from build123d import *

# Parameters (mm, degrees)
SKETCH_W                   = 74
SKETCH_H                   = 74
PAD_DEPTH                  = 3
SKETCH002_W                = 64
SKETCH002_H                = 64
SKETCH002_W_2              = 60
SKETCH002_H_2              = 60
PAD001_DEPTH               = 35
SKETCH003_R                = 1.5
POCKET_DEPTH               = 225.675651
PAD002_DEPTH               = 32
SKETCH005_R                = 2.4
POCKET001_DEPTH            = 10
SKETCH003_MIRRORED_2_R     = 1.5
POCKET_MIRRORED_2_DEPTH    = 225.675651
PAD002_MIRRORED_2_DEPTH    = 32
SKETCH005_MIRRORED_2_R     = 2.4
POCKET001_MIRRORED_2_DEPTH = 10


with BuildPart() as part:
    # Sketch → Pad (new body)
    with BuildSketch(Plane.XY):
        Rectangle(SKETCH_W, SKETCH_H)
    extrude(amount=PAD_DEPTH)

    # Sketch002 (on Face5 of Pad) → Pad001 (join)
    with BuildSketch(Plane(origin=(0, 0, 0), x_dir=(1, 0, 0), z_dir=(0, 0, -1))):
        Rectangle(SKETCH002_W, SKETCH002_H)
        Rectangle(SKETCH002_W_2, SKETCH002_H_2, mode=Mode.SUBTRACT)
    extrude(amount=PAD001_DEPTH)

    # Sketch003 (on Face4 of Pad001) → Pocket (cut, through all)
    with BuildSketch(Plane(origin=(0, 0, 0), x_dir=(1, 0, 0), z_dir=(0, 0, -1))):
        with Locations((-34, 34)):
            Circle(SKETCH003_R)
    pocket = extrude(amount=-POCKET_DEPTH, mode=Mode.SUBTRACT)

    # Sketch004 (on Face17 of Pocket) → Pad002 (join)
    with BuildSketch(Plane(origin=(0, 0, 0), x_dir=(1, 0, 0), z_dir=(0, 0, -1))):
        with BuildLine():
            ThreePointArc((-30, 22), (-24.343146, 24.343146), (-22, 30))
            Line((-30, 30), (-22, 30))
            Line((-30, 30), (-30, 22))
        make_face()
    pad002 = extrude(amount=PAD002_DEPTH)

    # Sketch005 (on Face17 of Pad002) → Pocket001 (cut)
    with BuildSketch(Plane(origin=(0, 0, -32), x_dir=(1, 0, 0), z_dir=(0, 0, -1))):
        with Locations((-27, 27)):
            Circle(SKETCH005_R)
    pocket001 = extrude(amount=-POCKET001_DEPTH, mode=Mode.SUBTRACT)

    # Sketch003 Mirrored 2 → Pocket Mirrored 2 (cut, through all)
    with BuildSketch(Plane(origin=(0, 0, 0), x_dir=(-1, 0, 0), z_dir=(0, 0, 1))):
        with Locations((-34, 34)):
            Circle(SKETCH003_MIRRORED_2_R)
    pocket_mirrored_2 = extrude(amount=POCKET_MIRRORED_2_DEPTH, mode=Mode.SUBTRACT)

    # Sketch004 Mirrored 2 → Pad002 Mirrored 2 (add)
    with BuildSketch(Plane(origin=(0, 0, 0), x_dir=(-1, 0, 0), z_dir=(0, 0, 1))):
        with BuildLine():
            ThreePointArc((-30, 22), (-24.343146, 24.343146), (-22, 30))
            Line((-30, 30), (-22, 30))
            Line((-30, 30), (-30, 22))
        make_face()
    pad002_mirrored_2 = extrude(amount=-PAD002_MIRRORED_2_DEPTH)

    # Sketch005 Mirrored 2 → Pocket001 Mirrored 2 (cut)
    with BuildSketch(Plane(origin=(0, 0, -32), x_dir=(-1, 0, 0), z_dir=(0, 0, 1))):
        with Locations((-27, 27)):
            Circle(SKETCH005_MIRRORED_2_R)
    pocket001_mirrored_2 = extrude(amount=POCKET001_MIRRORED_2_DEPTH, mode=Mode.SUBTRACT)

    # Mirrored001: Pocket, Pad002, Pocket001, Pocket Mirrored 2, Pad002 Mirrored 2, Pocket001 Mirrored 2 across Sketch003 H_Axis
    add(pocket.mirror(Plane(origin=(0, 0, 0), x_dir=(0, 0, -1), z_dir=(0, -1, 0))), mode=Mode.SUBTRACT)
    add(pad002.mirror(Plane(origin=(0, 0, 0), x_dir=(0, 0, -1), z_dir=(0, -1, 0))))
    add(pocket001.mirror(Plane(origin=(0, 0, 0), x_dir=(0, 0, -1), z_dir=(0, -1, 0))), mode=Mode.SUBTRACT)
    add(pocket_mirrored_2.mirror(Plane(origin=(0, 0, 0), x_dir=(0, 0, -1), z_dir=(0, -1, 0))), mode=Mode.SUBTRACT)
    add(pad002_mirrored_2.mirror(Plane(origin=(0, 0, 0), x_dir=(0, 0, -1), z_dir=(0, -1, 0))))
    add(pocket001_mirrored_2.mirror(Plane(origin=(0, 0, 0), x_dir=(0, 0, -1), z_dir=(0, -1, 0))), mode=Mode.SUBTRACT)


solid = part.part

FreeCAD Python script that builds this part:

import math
import FreeCAD as App
import Part
import Sketcher
from FreeCAD import Vector
Q = App.Units.Quantity


def add_polygon(sketch, points):
    """Adds a closed chain of lines whose ends are joined by coincident constraints."""
    first, n = sketch.GeometryCount, len(points)
    for a, b in zip(points, points[1:] + points[:1]):
        sketch.addGeometry(Part.LineSegment(App.Vector(*a, 0), App.Vector(*b, 0)), False)
    for i in range(n):
        sketch.addConstraint(Sketcher.Constraint("Coincident", first + i, 2, first + (i + 1) % n, 1))

doc = App.newDocument("Part")
body = doc.addObject("PartDesign::Body", "Body")

# Sketch on XY plane
sketch1 = doc.addObject("Sketcher::SketchObject", "Sketch")
body.addObject(sketch1)
sketch1.AttachmentSupport = (doc.XY_Plane, [""])
sketch1.MapMode = "FlatFace"
add_polygon(sketch1, [(-37, 37), (-37, -37), (37, -37), (37, 37)])  # lines 0-3
sketch1.addConstraint([
    Sketcher.Constraint("Vertical", 0),
    Sketcher.Constraint("Horizontal", 1),
    Sketcher.Constraint("Vertical", 2),
    Sketcher.Constraint("Horizontal", 3),
    Sketcher.Constraint("Symmetric", 0, 2, 2, 2, -1, 1),
    Sketcher.Constraint("Equal", 3, 0),
    Sketcher.Constraint("DistanceX", 1, 1, 1, 2, Q("74 mm")),
])
pad1 = doc.addObject("PartDesign::Pad", "Pad")
body.addObject(pad1)
pad1.Profile = sketch1
pad1.Length = 3

# Sketch on XY plane
sketch2 = doc.addObject("Sketcher::SketchObject", "Sketch001")
body.addObject(sketch2)
sketch2.AttachmentSupport = (doc.XY_Plane, [""])
sketch2.MapMode = "FlatFace"
add_polygon(sketch2, [(-32, -32), (-32, 32), (32, 32), (32, -32)])  # lines 0-3
add_polygon(sketch2, [(30, 30), (-30, 30), (-30, -30), (30, -30)])  # lines 4-7
sketch2.addConstraint([
    Sketcher.Constraint("Vertical", 0),
    Sketcher.Constraint("Horizontal", 1),
    Sketcher.Constraint("Vertical", 2),
    Sketcher.Constraint("Horizontal", 3),
    Sketcher.Constraint("Horizontal", 4),
    Sketcher.Constraint("Vertical", 5),
    Sketcher.Constraint("Horizontal", 6),
    Sketcher.Constraint("Vertical", 7),
    Sketcher.Constraint("Symmetric", 0, 2, 2, 2, -1, 1),
    Sketcher.Constraint("Symmetric", 4, 2, 6, 2, -1, 1),
    Sketcher.Constraint("Equal", 3, 0),
    Sketcher.Constraint("Equal", 6, 5),
    Sketcher.Constraint("DistanceX", 1, 1, 1, 2, Q("64 mm")),
    Sketcher.Constraint("DistanceX", 4, 2, 4, 1, Q("60 mm")),
])
pad2 = doc.addObject("PartDesign::Pad", "Pad001")
body.addObject(pad2)
pad2.Profile = sketch2
pad2.Length = 35
pad2.Reversed = True

# Sketch on XY plane
sketch3 = doc.addObject("Sketcher::SketchObject", "Sketch002")
body.addObject(sketch3)
sketch3.AttachmentSupport = (doc.XY_Plane, [""])
sketch3.MapMode = "FlatFace"
sketch3.addGeometry(Part.Circle(Vector(-34, -34, 0), Vector(0, 0, 1), 1.5), False)
sketch3.addConstraint([
    Sketcher.Constraint("Diameter", 0, Q("3 mm")),
    Sketcher.Constraint("DistanceX", 0, 3, -1, 1, Q("34 mm")),
    Sketcher.Constraint("DistanceY", 0, 3, -1, 1, Q("34 mm")),
])
pocket1 = doc.addObject("PartDesign::Pocket", "Pocket")
body.addObject(pocket1)
pocket1.Profile = sketch3
pocket1.Type = "ThroughAll"
pocket1.Reversed = True

# Sketch on XY plane
sketch4 = doc.addObject("Sketcher::SketchObject", "Sketch003")
body.addObject(sketch4)
sketch4.AttachmentSupport = (doc.XY_Plane, [""])
sketch4.MapMode = "FlatFace"
sketch4.addGeometry([
    Part.ArcOfCircle(Part.Circle(Vector(-30, -30, 0), Vector(0, 0, 1), 8), math.radians(0), math.radians(90)),
    Part.LineSegment(Vector(-22, -30, 0), Vector(-30, -30, 0)),
    Part.LineSegment(Vector(-30, -30, 0), Vector(-30, -22, 0)),
], False)
sketch4.addConstraint([
    Sketcher.Constraint("Coincident", 0, 1, 1, 1),
    Sketcher.Constraint("Coincident", 1, 2, 2, 1),
    Sketcher.Constraint("Coincident", 2, 2, 0, 2),
    Sketcher.Constraint("Horizontal", 1),
    Sketcher.Constraint("Vertical", 2),
    Sketcher.Constraint("Coincident", 1, 2, 0, 3),
    Sketcher.Constraint("Radius", 0, Q("8.000001 mm")),
    Sketcher.Constraint("DistanceX", 0, 3, -1, 1, Q("30.000001 mm")),
    Sketcher.Constraint("DistanceY", 0, 3, -1, 1, Q("30.000001 mm")),
])
pad3 = doc.addObject("PartDesign::Pad", "Pad002")
body.addObject(pad3)
pad3.Profile = sketch4
pad3.Length = 32
pad3.Reversed = True

# Sketch on XY plane
sketch5 = doc.addObject("Sketcher::SketchObject", "Sketch004")
body.addObject(sketch5)
sketch5.AttachmentSupport = (doc.XY_Plane, [""])
sketch5.MapMode = "FlatFace"
sketch5.AttachmentOffset = App.Placement(Vector(0, 0, -32), App.Rotation())
sketch5.addGeometry(Part.Circle(Vector(-27, -27, 0), Vector(0, 0, 1), 2.4), False)
sketch5.addConstraint([
    Sketcher.Constraint("Diameter", 0, Q("4.8 mm")),
    Sketcher.Constraint("DistanceX", 0, 3, -1, 1, Q("27 mm")),
    Sketcher.Constraint("DistanceY", 0, 3, -1, 1, Q("27 mm")),
])
pocket2 = doc.addObject("PartDesign::Pocket", "Pocket001")
body.addObject(pocket2)
pocket2.Profile = sketch5
pocket2.Length = 10
pocket2.Reversed = True

# Sketch on XY plane
sketch6 = doc.addObject("Sketcher::SketchObject", "Sketch005")
body.addObject(sketch6)
sketch6.AttachmentSupport = (doc.XY_Plane, [""])
sketch6.MapMode = "FlatFace"
sketch6.addGeometry(Part.Circle(Vector(34, -34, 0), Vector(0, 0, 1), 1.5), False)
sketch6.addConstraint([
    Sketcher.Constraint("Diameter", 0, Q("3 mm")),
    Sketcher.Constraint("DistanceX", -1, 1, 0, 3, Q("34 mm")),
    Sketcher.Constraint("DistanceY", 0, 3, -1, 1, Q("34 mm")),
])
pocket3 = doc.addObject("PartDesign::Pocket", "Pocket002")
body.addObject(pocket3)
pocket3.Profile = sketch6
pocket3.Type = "ThroughAll"
pocket3.Reversed = True

# Sketch on XY plane
sketch7 = doc.addObject("Sketcher::SketchObject", "Sketch006")
body.addObject(sketch7)
sketch7.AttachmentSupport = (doc.XY_Plane, [""])
sketch7.MapMode = "FlatFace"
sketch7.addGeometry([
    Part.ArcOfCircle(Part.Circle(Vector(30, -30, 0), Vector(0, 0, 1), 8), math.radians(90), math.radians(180)),
    Part.LineSegment(Vector(22, -30, 0), Vector(30, -30, 0)),
    Part.LineSegment(Vector(30, -30, 0), Vector(30, -22, 0)),
], False)
sketch7.addConstraint([
    Sketcher.Constraint("Coincident", 0, 2, 1, 1),
    Sketcher.Constraint("Coincident", 1, 2, 2, 1),
    Sketcher.Constraint("Coincident", 2, 2, 0, 1),
    Sketcher.Constraint("Horizontal", 1),
    Sketcher.Constraint("Vertical", 2),
    Sketcher.Constraint("Coincident", 1, 2, 0, 3),
    Sketcher.Constraint("Radius", 0, Q("8.000001 mm")),
    Sketcher.Constraint("DistanceX", -1, 1, 0, 3, Q("30.000001 mm")),
    Sketcher.Constraint("DistanceY", 0, 3, -1, 1, Q("30.000001 mm")),
])
pad4 = doc.addObject("PartDesign::Pad", "Pad003")
body.addObject(pad4)
pad4.Profile = sketch7
pad4.Length = 32
pad4.Reversed = True

# Sketch on XY plane
sketch8 = doc.addObject("Sketcher::SketchObject", "Sketch007")
body.addObject(sketch8)
sketch8.AttachmentSupport = (doc.XY_Plane, [""])
sketch8.MapMode = "FlatFace"
sketch8.AttachmentOffset = App.Placement(Vector(0, 0, -32), App.Rotation())
sketch8.addGeometry(Part.Circle(Vector(27, -27, 0), Vector(0, 0, 1), 2.4), False)
sketch8.addConstraint([
    Sketcher.Constraint("Diameter", 0, Q("4.8 mm")),
    Sketcher.Constraint("DistanceX", -1, 1, 0, 3, Q("27 mm")),
    Sketcher.Constraint("DistanceY", 0, 3, -1, 1, Q("27 mm")),
])
pocket4 = doc.addObject("PartDesign::Pocket", "Pocket003")
body.addObject(pocket4)
pocket4.Profile = sketch8
pocket4.Length = 10
pocket4.Reversed = True
doc.recompute()

mirrored = doc.addObject("PartDesign::Mirrored", "Mirrored")
body.addObject(mirrored)
mirrored.Originals = [pocket1, pad3, pocket2, pocket3, pad4, pocket4]
mirrored.MirrorPlane = (doc.XZ_Plane, [""])
body.Tip = mirrored

doc.recompute()
